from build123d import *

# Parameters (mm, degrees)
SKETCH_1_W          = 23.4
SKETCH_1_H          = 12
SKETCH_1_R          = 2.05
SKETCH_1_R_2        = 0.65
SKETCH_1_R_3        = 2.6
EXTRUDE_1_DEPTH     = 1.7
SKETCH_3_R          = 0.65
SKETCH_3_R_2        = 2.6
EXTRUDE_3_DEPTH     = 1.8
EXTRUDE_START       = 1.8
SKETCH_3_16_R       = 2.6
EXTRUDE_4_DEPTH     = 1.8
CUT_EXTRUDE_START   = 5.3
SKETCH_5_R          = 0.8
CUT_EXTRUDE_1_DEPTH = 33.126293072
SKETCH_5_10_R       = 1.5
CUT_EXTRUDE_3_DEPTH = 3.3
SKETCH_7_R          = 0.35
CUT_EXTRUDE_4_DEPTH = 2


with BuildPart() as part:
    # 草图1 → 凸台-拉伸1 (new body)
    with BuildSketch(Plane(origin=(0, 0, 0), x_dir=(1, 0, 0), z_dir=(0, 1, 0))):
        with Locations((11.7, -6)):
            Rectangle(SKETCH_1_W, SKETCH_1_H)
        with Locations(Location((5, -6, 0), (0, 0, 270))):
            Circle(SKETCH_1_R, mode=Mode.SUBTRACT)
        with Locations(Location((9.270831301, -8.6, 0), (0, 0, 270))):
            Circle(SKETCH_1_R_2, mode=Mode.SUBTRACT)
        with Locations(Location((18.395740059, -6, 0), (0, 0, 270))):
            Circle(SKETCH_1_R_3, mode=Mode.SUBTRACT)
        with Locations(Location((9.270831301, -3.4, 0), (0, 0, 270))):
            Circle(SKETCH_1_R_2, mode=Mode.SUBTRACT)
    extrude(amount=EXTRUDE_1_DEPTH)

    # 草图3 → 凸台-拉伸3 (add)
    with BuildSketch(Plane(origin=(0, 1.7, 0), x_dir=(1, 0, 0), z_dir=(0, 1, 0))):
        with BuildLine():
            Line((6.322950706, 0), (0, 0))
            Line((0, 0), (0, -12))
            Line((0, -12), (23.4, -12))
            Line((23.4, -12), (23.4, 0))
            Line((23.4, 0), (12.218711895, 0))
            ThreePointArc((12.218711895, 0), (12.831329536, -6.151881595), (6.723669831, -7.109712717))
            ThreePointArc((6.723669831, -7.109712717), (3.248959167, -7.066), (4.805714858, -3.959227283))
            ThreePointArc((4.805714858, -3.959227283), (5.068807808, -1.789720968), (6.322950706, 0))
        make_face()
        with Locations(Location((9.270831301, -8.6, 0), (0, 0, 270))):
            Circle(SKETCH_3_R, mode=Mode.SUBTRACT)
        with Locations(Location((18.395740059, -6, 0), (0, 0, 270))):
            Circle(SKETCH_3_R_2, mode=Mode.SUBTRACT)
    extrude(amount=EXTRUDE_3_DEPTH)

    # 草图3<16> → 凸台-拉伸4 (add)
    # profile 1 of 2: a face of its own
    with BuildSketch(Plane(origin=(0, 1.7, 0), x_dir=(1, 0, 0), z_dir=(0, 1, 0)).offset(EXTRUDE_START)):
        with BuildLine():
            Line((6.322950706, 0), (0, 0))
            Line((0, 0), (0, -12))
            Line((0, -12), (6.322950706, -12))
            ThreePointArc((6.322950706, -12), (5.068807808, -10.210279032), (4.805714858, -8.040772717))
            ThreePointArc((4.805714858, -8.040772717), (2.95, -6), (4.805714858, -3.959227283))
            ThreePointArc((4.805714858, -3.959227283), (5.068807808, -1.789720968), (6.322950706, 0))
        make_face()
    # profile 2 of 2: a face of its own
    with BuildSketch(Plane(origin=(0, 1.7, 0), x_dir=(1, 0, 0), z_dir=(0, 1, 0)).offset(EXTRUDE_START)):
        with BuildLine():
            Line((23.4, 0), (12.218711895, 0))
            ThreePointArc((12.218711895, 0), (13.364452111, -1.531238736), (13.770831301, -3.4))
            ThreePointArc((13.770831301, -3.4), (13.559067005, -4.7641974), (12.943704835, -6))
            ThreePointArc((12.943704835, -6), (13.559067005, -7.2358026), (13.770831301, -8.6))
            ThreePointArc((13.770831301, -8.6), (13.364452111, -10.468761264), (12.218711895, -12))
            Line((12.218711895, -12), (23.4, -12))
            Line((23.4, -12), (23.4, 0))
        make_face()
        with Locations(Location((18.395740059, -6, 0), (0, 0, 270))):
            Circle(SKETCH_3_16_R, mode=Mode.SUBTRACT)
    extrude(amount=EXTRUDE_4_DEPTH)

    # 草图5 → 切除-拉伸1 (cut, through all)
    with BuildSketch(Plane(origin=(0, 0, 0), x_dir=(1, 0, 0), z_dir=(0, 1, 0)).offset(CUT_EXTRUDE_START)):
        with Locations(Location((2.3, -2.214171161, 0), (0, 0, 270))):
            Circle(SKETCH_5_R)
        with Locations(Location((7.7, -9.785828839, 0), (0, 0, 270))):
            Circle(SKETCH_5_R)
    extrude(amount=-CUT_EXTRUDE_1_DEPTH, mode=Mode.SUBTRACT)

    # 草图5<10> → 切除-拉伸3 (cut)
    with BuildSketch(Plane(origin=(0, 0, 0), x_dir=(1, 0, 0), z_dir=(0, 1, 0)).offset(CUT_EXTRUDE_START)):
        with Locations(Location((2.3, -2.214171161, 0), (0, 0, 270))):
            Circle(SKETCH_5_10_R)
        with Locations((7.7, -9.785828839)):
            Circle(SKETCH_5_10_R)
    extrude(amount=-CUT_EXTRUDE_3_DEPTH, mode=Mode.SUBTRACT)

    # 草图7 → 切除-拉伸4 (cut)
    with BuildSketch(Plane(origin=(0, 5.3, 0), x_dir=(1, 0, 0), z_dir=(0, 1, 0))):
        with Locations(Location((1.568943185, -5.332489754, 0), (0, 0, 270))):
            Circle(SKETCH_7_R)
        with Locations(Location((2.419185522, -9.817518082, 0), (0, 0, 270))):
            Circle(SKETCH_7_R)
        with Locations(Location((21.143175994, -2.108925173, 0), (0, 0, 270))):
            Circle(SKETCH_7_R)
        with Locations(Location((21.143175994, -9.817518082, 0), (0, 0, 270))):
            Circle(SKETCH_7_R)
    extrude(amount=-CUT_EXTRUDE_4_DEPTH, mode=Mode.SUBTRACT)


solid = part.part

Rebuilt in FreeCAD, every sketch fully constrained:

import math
import FreeCAD as App
import Part
import Sketcher

doc = App.newDocument("Part")
body = doc.addObject("PartDesign::Body", "Body")

sketch1 = body.newObject("Sketcher::SketchObject", "Sketch")
sketch1.AttachmentSupport = (doc.getObject("XZ_Plane"), [""])
sketch1.MapMode = "FlatFace"
sketch1.addGeometry(Part.LineSegment(App.Vector(0, 0, 0), App.Vector(0, 12, 0)), False)
sketch1.addGeometry(Part.LineSegment(App.Vector(0, 12, 0), App.Vector(23.4, 12, 0)), False)
sketch1.addGeometry(Part.LineSegment(App.Vector(23.4, 12, 0), App.Vector(23.4, 0, 0)), False)
sketch1.addGeometry(Part.LineSegment(App.Vector(23.4, 0, 0), App.Vector(0, 0, 0)), False)
sketch1.addGeometry(Part.Circle(App.Vector(9.270831, 8.6, 0), App.Vector(0, 0, 1), 0.65), False)
sketch1.addGeometry(Part.Circle(App.Vector(5, 6, 0), App.Vector(0, 0, 1), 2.05), False)
sketch1.addGeometry(Part.Circle(App.Vector(18.39574, 6, 0), App.Vector(0, 0, 1), 2.6), False)
sketch1.addGeometry(Part.Circle(App.Vector(9.270831, 3.4, 0), App.Vector(0, 0, 1), 0.65), False)
sketch1.addConstraint(Sketcher.Constraint("Coincident", 0, 2, 1, 1))
sketch1.addConstraint(Sketcher.Constraint("Coincident", 1, 2, 2, 1))
sketch1.addConstraint(Sketcher.Constraint("Coincident", 2, 2, 3, 1))
sketch1.addConstraint(Sketcher.Constraint("Coincident", 3, 2, 0, 1))
sketch1.addConstraint(Sketcher.Constraint("Vertical", 0))
sketch1.addConstraint(Sketcher.Constraint("Horizontal", 1))
sketch1.addConstraint(Sketcher.Constraint("Vertical", 2))
sketch1.addConstraint(Sketcher.Constraint("Horizontal", 3))
sketch1.addConstraint(Sketcher.Constraint("Coincident", 3, 2, -1, 1))
sketch1.addConstraint(Sketcher.Constraint("Equal", 4, 7))
sketch1.addConstraint(Sketcher.Constraint("Horizontal", 5, 3, 6, 3))
sketch1.addConstraint(Sketcher.Constraint("Vertical", 4, 3, 7, 3))
sketch1.addConstraint(Sketcher.Constraint("Diameter", 4, 1.3))
sketch1.addConstraint(Sketcher.Constraint("Diameter", 5, 4.1))
sketch1.addConstraint(Sketcher.Constraint("Diameter", 6, 5.2))
sketch1.addConstraint(Sketcher.Constraint("DistanceY", 0, 1, 0, 2, 12.0))
sketch1.addConstraint(Sketcher.Constraint("DistanceX", 1, 1, 1, 2, 23.4))
sketch1.addConstraint(Sketcher.Constraint("DistanceX", -1, 1, 5, 3, 5.0))
sketch1.addConstraint(Sketcher.Constraint("DistanceY", -1, 1, 5, 3, 6.0))
sketch1.addConstraint(Sketcher.Constraint("DistanceY", -1, 1, 4, 3, 8.6))
sketch1.addConstraint(Sketcher.Constraint("DistanceY", -1, 1, 7, 3, 3.4))
sketch1.addConstraint(Sketcher.Constraint("DistanceX", -1, 1, 4, 3, 9.270831))
sketch1.addConstraint(Sketcher.Constraint("DistanceX", -1, 1, 6, 3, 18.39574))
pad1 = body.newObject("PartDesign::Pad", "Pad")
pad1.Profile = sketch1
pad1.Length = 1.7
pad1.Reversed = True

sketch2 = body.newObject("Sketcher::SketchObject", "Sketch001")
sketch2.AttachmentSupport = (doc.getObject("XZ_Plane"), [""])
sketch2.MapMode = "FlatFace"
sketch2.AttachmentOffset = App.Placement(App.Vector(0, 0, -1.7), App.Rotation())
sketch2.addGeometry(Part.LineSegment(App.Vector(6.322951, 0, 0), App.Vector(0, 0, 0)), False)
sketch2.addGeometry(Part.LineSegment(App.Vector(0, 0, 0), App.Vector(0, 12, 0)), False)
sketch2.addGeometry(Part.LineSegment(App.Vector(0, 12, 0), App.Vector(23.4, 12, 0)), False)
sketch2.addGeometry(Part.LineSegment(App.Vector(23.4, 12, 0), App.Vector(23.4, 0, 0)), False)
sketch2.addGeometry(Part.LineSegment(App.Vector(23.4, 0, 0), App.Vector(12.218712, 0, 0)), False)
sketch2.addGeometry(Part.ArcOfCircle(Part.Circle(App.Vector(9.270831, 3.4, 0), App.Vector(0, 0, 1), 4.5), math.radians(-49.073937), math.radians(124.474256)), False)
sketch2.addGeometry(Part.ArcOfCircle(Part.Circle(App.Vector(5, 6, 0), App.Vector(0, 0, 1), 2.05), math.radians(32.773766), math.radians(264.561731)), False)
sketch2.addGeometry(Part.ArcOfCircle(Part.Circle(App.Vector(9.270831, 3.4, 0), App.Vector(0, 0, 1), 4.5), math.radians(172.861241), math.radians(229.073937)), False)
sketch2.addGeometry(Part.Circle(App.Vector(9.270831, 8.6, 0), App.Vector(0, 0, 1), 0.65), False)
sketch2.addGeometry(Part.Circle(App.Vector(18.39574, 6, 0), App.Vector(0, 0, 1), 2.6), False)
sketch2.addConstraint(Sketcher.Constraint("Coincident", 0, 2, 1, 1))
sketch2.addConstraint(Sketcher.Constraint("Coincident", 1, 2, 2, 1))
sketch2.addConstraint(Sketcher.Constraint("Coincident", 2, 2, 3, 1))
sketch2.addConstraint(Sketcher.Constraint("Coincident", 3, 2, 4, 1))
sketch2.addConstraint(Sketcher.Constraint("Coincident", 4, 2, 5, 1))
sketch2.addConstraint(Sketcher.Constraint("Coincident", 5, 2, 6, 1))
sketch2.addConstraint(Sketcher.Constraint("Coincident", 6, 2, 7, 1))
sketch2.addConstraint(Sketcher.Constraint("Coincident", 7, 2, 0, 1))
sketch2.addConstraint(Sketcher.Constraint("Horizontal", 0))
sketch2.addConstraint(Sketcher.Constraint("Vertical", 1))
sketch2.addConstraint(Sketcher.Constraint("Horizontal", 2))
sketch2.addConstraint(Sketcher.Constraint("Vertical", 3))
sketch2.addConstraint(Sketcher.Constraint("Horizontal", 4))
sketch2.addConstraint(Sketcher.Constraint("Coincident", 0, 2, -1, 1))
sketch2.addConstraint(Sketcher.Constraint("Coincident", 7, 3, 5, 3))
sketch2.addConstraint(Sketcher.Constraint("Equal", 5, 7))
sketch2.addConstraint(Sketcher.Constraint("PointOnObject", 3, 2, -1))
sketch2.addConstraint(Sketcher.Constraint("Horizontal", 6, 3, 9, 3))
sketch2.addConstraint(Sketcher.Constraint("Vertical", 7, 3, 8, 3))
sketch2.addConstraint(Sketcher.Constraint("Diameter", 8, 1.3))
sketch2.addConstraint(Sketcher.Constraint("Diameter", 9, 5.2))
sketch2.addConstraint(Sketcher.Constraint("Radius", 5, 4.5))
sketch2.addConstraint(Sketcher.Constraint("DistanceY", 1, 1, 1, 2, 12.0))
sketch2.addConstraint(Sketcher.Constraint("Radius", 6, 2.05))
sketch2.addConstraint(Sketcher.Constraint("DistanceX", 2, 1, 2, 2, 23.4))
sketch2.addConstraint(Sketcher.Constraint("DistanceX", -1, 1, 6, 3, 5.0))
sketch2.addConstraint(Sketcher.Constraint("DistanceY", -1, 1, 6, 3, 6.0))
sketch2.addConstraint(Sketcher.Constraint("DistanceY", -1, 1, 5, 3, 3.4))
sketch2.addConstraint(Sketcher.Constraint("DistanceY", -1, 1, 8, 3, 8.6))
sketch2.addConstraint(Sketcher.Constraint("DistanceX", 0, 2, 0, 1, 6.322951))
sketch2.addConstraint(Sketcher.Constraint("DistanceX", -1, 1, 9, 3, 18.39574))
pad2 = body.newObject("PartDesign::Pad", "Pad001")
pad2.Profile = sketch2
pad2.Length = 1.8
pad2.Reversed = True

sketch3 = body.newObject("Sketcher::SketchObject", "Sketch002")
sketch3.AttachmentSupport = (doc.getObject("XZ_Plane"), [""])
sketch3.MapMode = "FlatFace"
sketch3.AttachmentOffset = App.Placement(App.Vector(0, 0, -3.5), App.Rotation())
sketch3.addGeometry(Part.LineSegment(App.Vector(6.322951, 0, 0), App.Vector(0, 0, 0)), False)
sketch3.addGeometry(Part.LineSegment(App.Vector(0, 0, 0), App.Vector(0, 12, 0)), False)
sketch3.addGeometry(Part.LineSegment(App.Vector(0, 12, 0), App.Vector(6.322951, 12, 0)), False)
sketch3.addGeometry(Part.ArcOfCircle(Part.Circle(App.Vector(9.270831, 8.6, 0), App.Vector(0, 0, 1), 4.5), math.radians(130.926063), math.radians(187.138759)), False)
sketch3.addGeometry(Part.ArcOfCircle(Part.Circle(App.Vector(5, 6, 0), App.Vector(0, 0, 1), 2.05), math.radians(95.438269), math.radians(264.561731)), False)
sketch3.addGeometry(Part.ArcOfCircle(Part.Circle(App.Vector(9.270831, 3.4, 0), App.Vector(0, 0, 1), 4.5), math.radians(172.861241), math.radians(229.073937)), False)
sketch3.addGeometry(Part.LineSegment(App.Vector(23.4, 0, 0), App.Vector(12.218712, 0, 0)), False)
sketch3.addGeometry(Part.ArcOfCircle(Part.Circle(App.Vector(9.270831, 3.4, 0), App.Vector(0, 0, 1), 4.5), math.radians(-49.073937), math.radians(0)), False)
sketch3.addGeometry(Part.ArcOfCircle(Part.Circle(App.Vector(9.270831, 3.4, 0), App.Vector(0, 0, 1), 4.5), math.radians(0), math.radians(35.294395)), False)
sketch3.addGeometry(Part.ArcOfCircle(Part.Circle(App.Vector(9.270831, 8.6, 0), App.Vector(0, 0, 1), 4.5), math.radians(-35.294395), math.radians(0)), False)
sketch3.addGeometry(Part.ArcOfCircle(Part.Circle(App.Vector(9.270831, 8.6, 0), App.Vector(0, 0, 1), 4.5), math.radians(0), math.radians(49.073937)), False)
sketch3.addGeometry(Part.LineSegment(App.Vector(12.218712, 12, 0), App.Vector(23.4, 12, 0)), False)
sketch3.addGeometry(Part.LineSegment(App.Vector(23.4, 12, 0), App.Vector(23.4, 0, 0)), False)
sketch3.addGeometry(Part.Circle(App.Vector(18.39574, 6, 0), App.Vector(0, 0, 1), 2.6), False)
sketch3.addConstraint(Sketcher.Constraint("Coincident", 0, 2, 1, 1))
sketch3.addConstraint(Sketcher.Constraint("Coincident", 1, 2, 2, 1))
sketch3.addConstraint(Sketcher.Constraint("Coincident", 2, 2, 3, 1))
sketch3.addConstraint(Sketcher.Constraint("Coincident", 3, 2, 4, 1))
sketch3.addConstraint(Sketcher.Constraint("Coincident", 4, 2, 5, 1))
sketch3.addConstraint(Sketcher.Constraint("Coincident", 5, 2, 0, 1))
sketch3.addConstraint(Sketcher.Constraint("Coincident", 6, 2, 7, 1))
sketch3.addConstraint(Sketcher.Constraint("Tangent", 7, 2, 8, 1))
sketch3.addConstraint(Sketcher.Constraint("Coincident", 8, 2, 9, 1))
sketch3.addConstraint(Sketcher.Constraint("Tangent", 9, 2, 10, 1))
sketch3.addConstraint(Sketcher.Constraint("Coincident", 10, 2, 11, 1))
sketch3.addConstraint(Sketcher.Constraint("Coincident", 11, 2, 12, 1))
sketch3.addConstraint(Sketcher.Constraint("Coincident", 12, 2, 6, 1))
sketch3.addConstraint(Sketcher.Constraint("Horizontal", 0))
sketch3.addConstraint(Sketcher.Constraint("Vertical", 1))
sketch3.addConstraint(Sketcher.Constraint("Horizontal", 2))
sketch3.addConstraint(Sketcher.Constraint("Horizontal", 6))
sketch3.addConstraint(Sketcher.Constraint("Horizontal", 11))
sketch3.addConstraint(Sketcher.Constraint("Vertical", 12))
sketch3.addConstraint(Sketcher.Constraint("Coincident", 0, 2, -1, 1))
sketch3.addConstraint(Sketcher.Constraint("Coincident", 7, 3, 5, 3))
sketch3.addConstraint(Sketcher.Constraint("Coincident", 9, 3, 3, 3))
sketch3.addConstraint(Sketcher.Constraint("Equal", 3, 5))
sketch3.addConstraint(Sketcher.Constraint("Equal", 5, 7))
sketch3.addConstraint(Sketcher.Constraint("Equal", 7, 8))
sketch3.addConstraint(Sketcher.Constraint("Equal", 8, 9))
sketch3.addConstraint(Sketcher.Constraint("Equal", 9, 10))
sketch3.addConstraint(Sketcher.Constraint("PointOnObject", 6, 2, -1))
sketch3.addConstraint(Sketcher.Constraint("Horizontal", 4, 3, 13, 3))
sketch3.addConstraint(Sketcher.Constraint("Horizontal", 8, 3, 7, 2))
sketch3.addConstraint(Sketcher.Constraint("Horizontal", 13, 3, 8, 2))
sketch3.addConstraint(Sketcher.Constraint("Horizontal", 10, 3, 9, 2))
sketch3.addConstraint(Sketcher.Constraint("Horizontal", 2, 2, 10, 2))
sketch3.addConstraint(Sketcher.Constraint("Vertical", 3, 3, 5, 3))
sketch3.addConstraint(Sketcher.Constraint("Vertical", 2, 2, 5, 2))
sketch3.addConstraint(Sketcher.Constraint("Diameter", 13, 5.2))
sketch3.addConstraint(Sketcher.Constraint("Radius", 3, 4.5))
sketch3.addConstraint(Sketcher.Constraint("DistanceY", 1, 1, 1, 2, 12.0))
sketch3.addConstraint(Sketcher.Constraint("Radius", 4, 2.05))
sketch3.addConstraint(Sketcher.Constraint("DistanceX", -1, 1, 4, 3, 5.0))
sketch3.addConstraint(Sketcher.Constraint("DistanceY", -1, 1, 3, 3, 8.6))
sketch3.addConstraint(Sketcher.Constraint("DistanceX", -1, 1, 11, 2, 23.4))
sketch3.addConstraint(Sketcher.Constraint("DistanceX", 0, 2, 0, 1, 6.322951))
sketch3.addConstraint(Sketcher.Constraint("DistanceX", -1, 1, 13, 3, 18.39574))
pad3 = body.newObject("PartDesign::Pad", "Pad002")
pad3.Profile = sketch3
pad3.Length = 1.8
pad3.Reversed = True

sketch4 = body.newObject("Sketcher::SketchObject", "Sketch003")
sketch4.AttachmentSupport = (doc.getObject("XZ_Plane"), [""])
sketch4.MapMode = "FlatFace"
sketch4.AttachmentOffset = App.Placement(App.Vector(0, 0, -5.3), App.Rotation())
sketch4.addGeometry(Part.Circle(App.Vector(2.3, 2.214171, 0), App.Vector(0, 0, 1), 0.8), False)
sketch4.addGeometry(Part.Circle(App.Vector(7.7, 9.785829, 0), App.Vector(0, 0, 1), 0.8), False)
sketch4.addConstraint(Sketcher.Constraint("Equal", 0, 1))
sketch4.addConstraint(Sketcher.Constraint("Diameter", 0, 1.6))
sketch4.addConstraint(Sketcher.Constraint("DistanceX", -1, 1, 0, 3, 2.3))
sketch4.addConstraint(Sketcher.Constraint("DistanceX", -1, 1, 1, 3, 7.7))
sketch4.addConstraint(Sketcher.Constraint("DistanceY", -1, 1, 0, 3, 2.214171))
sketch4.addConstraint(Sketcher.Constraint("DistanceY", -1, 1, 1, 3, 9.785829))
pocket1 = body.newObject("PartDesign::Pocket", "Pocket")
pocket1.Profile = sketch4
pocket1.Type = "ThroughAll"
pocket1.Reversed = True

sketch5 = body.newObject("Sketcher::SketchObject", "Sketch004")
sketch5.AttachmentSupport = (doc.getObject("XZ_Plane"), [""])
sketch5.MapMode = "FlatFace"
sketch5.AttachmentOffset = App.Placement(App.Vector(0, 0, -5.3), App.Rotation())
sketch5.addGeometry(Part.Circle(App.Vector(2.3, 2.214171, 0), App.Vector(0, 0, 1), 1.5), False)
sketch5.addGeometry(Part.Circle(App.Vector(7.7, 9.785829, 0), App.Vector(0, 0, 1), 1.5), False)
sketch5.addConstraint(Sketcher.Constraint("Equal", 0, 1))
sketch5.addConstraint(Sketcher.Constraint("Diameter", 0, 3.0))
sketch5.addConstraint(Sketcher.Constraint("DistanceX", -1, 1, 0, 3, 2.3))
sketch5.addConstraint(Sketcher.Constraint("DistanceX", -1, 1, 1, 3, 7.7))
sketch5.addConstraint(Sketcher.Constraint("DistanceY", -1, 1, 0, 3, 2.214171))
sketch5.addConstraint(Sketcher.Constraint("DistanceY", -1, 1, 1, 3, 9.785829))
pocket2 = body.newObject("PartDesign::Pocket", "Pocket001")
pocket2.Profile = sketch5
pocket2.Length = 3.3
pocket2.Reversed = True

sketch6 = body.newObject("Sketcher::SketchObject", "Sketch005")
sketch6.AttachmentSupport = (doc.getObject("XZ_Plane"), [""])
sketch6.MapMode = "FlatFace"
sketch6.AttachmentOffset = App.Placement(App.Vector(0, 0, -5.3), App.Rotation())
sketch6.addGeometry(Part.Circle(App.Vector(1.568943, 5.33249, 0), App.Vector(0, 0, 1), 0.35), False)
sketch6.addGeometry(Part.Circle(App.Vector(2.419186, 9.817518, 0), App.Vector(0, 0, 1), 0.35), False)
sketch6.addGeometry(Part.Circle(App.Vector(21.143176, 2.108925, 0), App.Vector(0, 0, 1), 0.35), False)
sketch6.addGeometry(Part.Circle(App.Vector(21.143176, 9.817518, 0), App.Vector(0, 0, 1), 0.35), False)
sketch6.addConstraint(Sketcher.Constraint("Equal", 0, 1))
sketch6.addConstraint(Sketcher.Constraint("Equal", 1, 2))
sketch6.addConstraint(Sketcher.Constraint("Equal", 2, 3))
sketch6.addConstraint(Sketcher.Constraint("Horizontal", 1, 3, 3, 3))
sketch6.addConstraint(Sketcher.Constraint("Vertical", 2, 3, 3, 3))
sketch6.addConstraint(Sketcher.Constraint("Diameter", 0, 0.7))
sketch6.addConstraint(Sketcher.Constraint("DistanceY", -1, 1, 0, 3, 5.33249))
sketch6.addConstraint(Sketcher.Constraint("DistanceY", -1, 1, 1, 3, 9.817518))
sketch6.addConstraint(Sketcher.Constraint("DistanceX", 1, 3, 2, 3, 18.72399))
sketch6.addConstraint(Sketcher.Constraint("DistanceX", -1, 1, 0, 3, 1.568943))
sketch6.addConstraint(Sketcher.Constraint("DistanceX", -1, 1, 1, 3, 2.419186))
sketch6.addConstraint(Sketcher.Constraint("DistanceY", -1, 1, 2, 3, 2.108925))
pocket3 = body.newObject("PartDesign::Pocket", "Pocket002")
pocket3.Profile = sketch6
pocket3.Length = 2
pocket3.Reversed = True

doc.recompute()
